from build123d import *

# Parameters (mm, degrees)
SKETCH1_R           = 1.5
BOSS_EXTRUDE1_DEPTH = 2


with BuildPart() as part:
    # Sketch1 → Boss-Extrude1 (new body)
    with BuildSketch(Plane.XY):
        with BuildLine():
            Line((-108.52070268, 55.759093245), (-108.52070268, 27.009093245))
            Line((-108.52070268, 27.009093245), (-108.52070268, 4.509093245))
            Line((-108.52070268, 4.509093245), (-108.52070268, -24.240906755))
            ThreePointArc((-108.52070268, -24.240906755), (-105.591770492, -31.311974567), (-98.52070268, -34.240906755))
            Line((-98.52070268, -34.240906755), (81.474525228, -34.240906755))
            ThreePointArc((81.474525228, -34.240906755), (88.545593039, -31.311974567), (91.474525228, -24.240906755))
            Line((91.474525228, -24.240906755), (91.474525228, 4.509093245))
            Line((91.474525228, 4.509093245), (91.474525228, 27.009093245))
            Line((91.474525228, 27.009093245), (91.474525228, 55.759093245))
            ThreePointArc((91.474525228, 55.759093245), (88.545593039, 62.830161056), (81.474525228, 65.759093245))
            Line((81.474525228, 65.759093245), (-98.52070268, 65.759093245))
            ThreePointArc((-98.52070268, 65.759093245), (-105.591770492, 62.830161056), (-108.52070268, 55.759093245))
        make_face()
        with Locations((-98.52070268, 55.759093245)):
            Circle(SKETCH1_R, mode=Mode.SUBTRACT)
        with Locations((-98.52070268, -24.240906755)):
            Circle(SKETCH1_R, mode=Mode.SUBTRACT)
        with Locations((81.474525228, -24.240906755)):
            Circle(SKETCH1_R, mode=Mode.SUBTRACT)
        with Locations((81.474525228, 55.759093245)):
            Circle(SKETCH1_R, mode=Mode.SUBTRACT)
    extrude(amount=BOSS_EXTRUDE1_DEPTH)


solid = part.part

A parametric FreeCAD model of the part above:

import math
import FreeCAD as App
import Part
import Sketcher

V = App.Vector

doc = App.newDocument("Part")
body = doc.addObject("PartDesign::Body", "Body")

sketch1 = body.newObject("Sketcher::SketchObject", "Sketch")
sketch1.AttachmentSupport = (doc.getObject("XY_Plane"), [""])
sketch1.MapMode = "FlatFace"
sketch1.addGeometry(Part.LineSegment(V(-108.520703, 55.759093, 0), V(-108.520703, -24.240907, 0)), False)
sketch1.addGeometry(Part.ArcOfCircle(Part.Circle(V(-98.520703, -24.240907, 0), V(0, 0, 1), 10), math.radians(180), math.radians(270)), False)
sketch1.addGeometry(Part.LineSegment(V(-98.520703, -34.240907, 0), V(81.474525, -34.240907, 0)), False)
sketch1.addGeometry(Part.ArcOfCircle(Part.Circle(V(81.474525, -24.240907, 0), V(0, 0, 1), 10), math.radians(-90), math.radians(0)), False)
sketch1.addGeometry(Part.LineSegment(V(91.474525, -24.240907, 0), V(91.474525, 55.759093, 0)), False)
sketch1.addGeometry(Part.ArcOfCircle(Part.Circle(V(81.474525, 55.759093, 0), V(0, 0, 1), 10), math.radians(0), math.radians(90)), False)
sketch1.addGeometry(Part.LineSegment(V(81.474525, 65.759093, 0), V(-98.520703, 65.759093, 0)), False)
sketch1.addGeometry(Part.ArcOfCircle(Part.Circle(V(-98.520703, 55.759093, 0), V(0, 0, 1), 10), math.radians(90), math.radians(180)), False)
sketch1.addGeometry(Part.Circle(V(-98.520703, -24.240907, 0), V(0, 0, 1), 1.5), False)
sketch1.addGeometry(Part.Circle(V(81.474525, -24.240907, 0), V(0, 0, 1), 1.5), False)
sketch1.addGeometry(Part.Circle(V(-98.520703, 55.759093, 0), V(0, 0, 1), 1.5), False)
sketch1.addGeometry(Part.Circle(V(81.474525, 55.759093, 0), V(0, 0, 1), 1.5), False)
sketch1.addConstraint(Sketcher.Constraint("Tangent", 0, 2, 1, 1))
sketch1.addConstraint(Sketcher.Constraint("Tangent", 1, 2, 2, 1))
sketch1.addConstraint(Sketcher.Constraint("Tangent", 2, 2, 3, 1))
sketch1.addConstraint(Sketcher.Constraint("Tangent", 3, 2, 4, 1))
sketch1.addConstraint(Sketcher.Constraint("Tangent", 4, 2, 5, 1))
sketch1.addConstraint(Sketcher.Constraint("Tangent", 5, 2, 6, 1))
sketch1.addConstraint(Sketcher.Constraint("Tangent", 6, 2, 7, 1))
sketch1.addConstraint(Sketcher.Constraint("Tangent", 7, 2, 0, 1))
sketch1.addConstraint(Sketcher.Constraint("Vertical", 0))
sketch1.addConstraint(Sketcher.Constraint("Horizontal", 2))
sketch1.addConstraint(Sketcher.Constraint("Vertical", 4))
sketch1.addConstraint(Sketcher.Constraint("Horizontal", 6))
sketch1.addConstraint(Sketcher.Constraint("Coincident", 8, 3, 1, 3))
sketch1.addConstraint(Sketcher.Constraint("Coincident", 9, 3, 3, 3))
sketch1.addConstraint(Sketcher.Constraint("Coincident", 10, 3, 7, 3))
sketch1.addConstraint(Sketcher.Constraint("Coincident", 11, 3, 5, 3))
sketch1.addConstraint(Sketcher.Constraint("Equal", 1, 3))
sketch1.addConstraint(Sketcher.Constraint("Equal", 3, 5))
sketch1.addConstraint(Sketcher.Constraint("Equal", 5, 7))
sketch1.addConstraint(Sketcher.Constraint("Equal", 8, 9))
sketch1.addConstraint(Sketcher.Constraint("Equal", 9, 10))
sketch1.addConstraint(Sketcher.Constraint("Equal", 10, 11))
sketch1.addConstraint(Sketcher.Constraint("Diameter", 8, 3.0))
sketch1.addConstraint(Sketcher.Constraint("Radius", 1, 10.0))
sketch1.addConstraint(Sketcher.Constraint("DistanceY", 0, 2, 0, 1, 80.0))
sketch1.addConstraint(Sketcher.Constraint("DistanceX", 2, 1, 2, 2, 179.995228))
sketch1.addConstraint(Sketcher.Constraint("DistanceX", 1, 3, -1, 1, 98.520703))
sketch1.addConstraint(Sketcher.Constraint("DistanceY", 1, 3, -1, 1, 24.240907))
pad1 = body.newObject("PartDesign::Pad", "Pad")
pad1.Profile = sketch1
pad1.Length = 2

doc.recompute()
